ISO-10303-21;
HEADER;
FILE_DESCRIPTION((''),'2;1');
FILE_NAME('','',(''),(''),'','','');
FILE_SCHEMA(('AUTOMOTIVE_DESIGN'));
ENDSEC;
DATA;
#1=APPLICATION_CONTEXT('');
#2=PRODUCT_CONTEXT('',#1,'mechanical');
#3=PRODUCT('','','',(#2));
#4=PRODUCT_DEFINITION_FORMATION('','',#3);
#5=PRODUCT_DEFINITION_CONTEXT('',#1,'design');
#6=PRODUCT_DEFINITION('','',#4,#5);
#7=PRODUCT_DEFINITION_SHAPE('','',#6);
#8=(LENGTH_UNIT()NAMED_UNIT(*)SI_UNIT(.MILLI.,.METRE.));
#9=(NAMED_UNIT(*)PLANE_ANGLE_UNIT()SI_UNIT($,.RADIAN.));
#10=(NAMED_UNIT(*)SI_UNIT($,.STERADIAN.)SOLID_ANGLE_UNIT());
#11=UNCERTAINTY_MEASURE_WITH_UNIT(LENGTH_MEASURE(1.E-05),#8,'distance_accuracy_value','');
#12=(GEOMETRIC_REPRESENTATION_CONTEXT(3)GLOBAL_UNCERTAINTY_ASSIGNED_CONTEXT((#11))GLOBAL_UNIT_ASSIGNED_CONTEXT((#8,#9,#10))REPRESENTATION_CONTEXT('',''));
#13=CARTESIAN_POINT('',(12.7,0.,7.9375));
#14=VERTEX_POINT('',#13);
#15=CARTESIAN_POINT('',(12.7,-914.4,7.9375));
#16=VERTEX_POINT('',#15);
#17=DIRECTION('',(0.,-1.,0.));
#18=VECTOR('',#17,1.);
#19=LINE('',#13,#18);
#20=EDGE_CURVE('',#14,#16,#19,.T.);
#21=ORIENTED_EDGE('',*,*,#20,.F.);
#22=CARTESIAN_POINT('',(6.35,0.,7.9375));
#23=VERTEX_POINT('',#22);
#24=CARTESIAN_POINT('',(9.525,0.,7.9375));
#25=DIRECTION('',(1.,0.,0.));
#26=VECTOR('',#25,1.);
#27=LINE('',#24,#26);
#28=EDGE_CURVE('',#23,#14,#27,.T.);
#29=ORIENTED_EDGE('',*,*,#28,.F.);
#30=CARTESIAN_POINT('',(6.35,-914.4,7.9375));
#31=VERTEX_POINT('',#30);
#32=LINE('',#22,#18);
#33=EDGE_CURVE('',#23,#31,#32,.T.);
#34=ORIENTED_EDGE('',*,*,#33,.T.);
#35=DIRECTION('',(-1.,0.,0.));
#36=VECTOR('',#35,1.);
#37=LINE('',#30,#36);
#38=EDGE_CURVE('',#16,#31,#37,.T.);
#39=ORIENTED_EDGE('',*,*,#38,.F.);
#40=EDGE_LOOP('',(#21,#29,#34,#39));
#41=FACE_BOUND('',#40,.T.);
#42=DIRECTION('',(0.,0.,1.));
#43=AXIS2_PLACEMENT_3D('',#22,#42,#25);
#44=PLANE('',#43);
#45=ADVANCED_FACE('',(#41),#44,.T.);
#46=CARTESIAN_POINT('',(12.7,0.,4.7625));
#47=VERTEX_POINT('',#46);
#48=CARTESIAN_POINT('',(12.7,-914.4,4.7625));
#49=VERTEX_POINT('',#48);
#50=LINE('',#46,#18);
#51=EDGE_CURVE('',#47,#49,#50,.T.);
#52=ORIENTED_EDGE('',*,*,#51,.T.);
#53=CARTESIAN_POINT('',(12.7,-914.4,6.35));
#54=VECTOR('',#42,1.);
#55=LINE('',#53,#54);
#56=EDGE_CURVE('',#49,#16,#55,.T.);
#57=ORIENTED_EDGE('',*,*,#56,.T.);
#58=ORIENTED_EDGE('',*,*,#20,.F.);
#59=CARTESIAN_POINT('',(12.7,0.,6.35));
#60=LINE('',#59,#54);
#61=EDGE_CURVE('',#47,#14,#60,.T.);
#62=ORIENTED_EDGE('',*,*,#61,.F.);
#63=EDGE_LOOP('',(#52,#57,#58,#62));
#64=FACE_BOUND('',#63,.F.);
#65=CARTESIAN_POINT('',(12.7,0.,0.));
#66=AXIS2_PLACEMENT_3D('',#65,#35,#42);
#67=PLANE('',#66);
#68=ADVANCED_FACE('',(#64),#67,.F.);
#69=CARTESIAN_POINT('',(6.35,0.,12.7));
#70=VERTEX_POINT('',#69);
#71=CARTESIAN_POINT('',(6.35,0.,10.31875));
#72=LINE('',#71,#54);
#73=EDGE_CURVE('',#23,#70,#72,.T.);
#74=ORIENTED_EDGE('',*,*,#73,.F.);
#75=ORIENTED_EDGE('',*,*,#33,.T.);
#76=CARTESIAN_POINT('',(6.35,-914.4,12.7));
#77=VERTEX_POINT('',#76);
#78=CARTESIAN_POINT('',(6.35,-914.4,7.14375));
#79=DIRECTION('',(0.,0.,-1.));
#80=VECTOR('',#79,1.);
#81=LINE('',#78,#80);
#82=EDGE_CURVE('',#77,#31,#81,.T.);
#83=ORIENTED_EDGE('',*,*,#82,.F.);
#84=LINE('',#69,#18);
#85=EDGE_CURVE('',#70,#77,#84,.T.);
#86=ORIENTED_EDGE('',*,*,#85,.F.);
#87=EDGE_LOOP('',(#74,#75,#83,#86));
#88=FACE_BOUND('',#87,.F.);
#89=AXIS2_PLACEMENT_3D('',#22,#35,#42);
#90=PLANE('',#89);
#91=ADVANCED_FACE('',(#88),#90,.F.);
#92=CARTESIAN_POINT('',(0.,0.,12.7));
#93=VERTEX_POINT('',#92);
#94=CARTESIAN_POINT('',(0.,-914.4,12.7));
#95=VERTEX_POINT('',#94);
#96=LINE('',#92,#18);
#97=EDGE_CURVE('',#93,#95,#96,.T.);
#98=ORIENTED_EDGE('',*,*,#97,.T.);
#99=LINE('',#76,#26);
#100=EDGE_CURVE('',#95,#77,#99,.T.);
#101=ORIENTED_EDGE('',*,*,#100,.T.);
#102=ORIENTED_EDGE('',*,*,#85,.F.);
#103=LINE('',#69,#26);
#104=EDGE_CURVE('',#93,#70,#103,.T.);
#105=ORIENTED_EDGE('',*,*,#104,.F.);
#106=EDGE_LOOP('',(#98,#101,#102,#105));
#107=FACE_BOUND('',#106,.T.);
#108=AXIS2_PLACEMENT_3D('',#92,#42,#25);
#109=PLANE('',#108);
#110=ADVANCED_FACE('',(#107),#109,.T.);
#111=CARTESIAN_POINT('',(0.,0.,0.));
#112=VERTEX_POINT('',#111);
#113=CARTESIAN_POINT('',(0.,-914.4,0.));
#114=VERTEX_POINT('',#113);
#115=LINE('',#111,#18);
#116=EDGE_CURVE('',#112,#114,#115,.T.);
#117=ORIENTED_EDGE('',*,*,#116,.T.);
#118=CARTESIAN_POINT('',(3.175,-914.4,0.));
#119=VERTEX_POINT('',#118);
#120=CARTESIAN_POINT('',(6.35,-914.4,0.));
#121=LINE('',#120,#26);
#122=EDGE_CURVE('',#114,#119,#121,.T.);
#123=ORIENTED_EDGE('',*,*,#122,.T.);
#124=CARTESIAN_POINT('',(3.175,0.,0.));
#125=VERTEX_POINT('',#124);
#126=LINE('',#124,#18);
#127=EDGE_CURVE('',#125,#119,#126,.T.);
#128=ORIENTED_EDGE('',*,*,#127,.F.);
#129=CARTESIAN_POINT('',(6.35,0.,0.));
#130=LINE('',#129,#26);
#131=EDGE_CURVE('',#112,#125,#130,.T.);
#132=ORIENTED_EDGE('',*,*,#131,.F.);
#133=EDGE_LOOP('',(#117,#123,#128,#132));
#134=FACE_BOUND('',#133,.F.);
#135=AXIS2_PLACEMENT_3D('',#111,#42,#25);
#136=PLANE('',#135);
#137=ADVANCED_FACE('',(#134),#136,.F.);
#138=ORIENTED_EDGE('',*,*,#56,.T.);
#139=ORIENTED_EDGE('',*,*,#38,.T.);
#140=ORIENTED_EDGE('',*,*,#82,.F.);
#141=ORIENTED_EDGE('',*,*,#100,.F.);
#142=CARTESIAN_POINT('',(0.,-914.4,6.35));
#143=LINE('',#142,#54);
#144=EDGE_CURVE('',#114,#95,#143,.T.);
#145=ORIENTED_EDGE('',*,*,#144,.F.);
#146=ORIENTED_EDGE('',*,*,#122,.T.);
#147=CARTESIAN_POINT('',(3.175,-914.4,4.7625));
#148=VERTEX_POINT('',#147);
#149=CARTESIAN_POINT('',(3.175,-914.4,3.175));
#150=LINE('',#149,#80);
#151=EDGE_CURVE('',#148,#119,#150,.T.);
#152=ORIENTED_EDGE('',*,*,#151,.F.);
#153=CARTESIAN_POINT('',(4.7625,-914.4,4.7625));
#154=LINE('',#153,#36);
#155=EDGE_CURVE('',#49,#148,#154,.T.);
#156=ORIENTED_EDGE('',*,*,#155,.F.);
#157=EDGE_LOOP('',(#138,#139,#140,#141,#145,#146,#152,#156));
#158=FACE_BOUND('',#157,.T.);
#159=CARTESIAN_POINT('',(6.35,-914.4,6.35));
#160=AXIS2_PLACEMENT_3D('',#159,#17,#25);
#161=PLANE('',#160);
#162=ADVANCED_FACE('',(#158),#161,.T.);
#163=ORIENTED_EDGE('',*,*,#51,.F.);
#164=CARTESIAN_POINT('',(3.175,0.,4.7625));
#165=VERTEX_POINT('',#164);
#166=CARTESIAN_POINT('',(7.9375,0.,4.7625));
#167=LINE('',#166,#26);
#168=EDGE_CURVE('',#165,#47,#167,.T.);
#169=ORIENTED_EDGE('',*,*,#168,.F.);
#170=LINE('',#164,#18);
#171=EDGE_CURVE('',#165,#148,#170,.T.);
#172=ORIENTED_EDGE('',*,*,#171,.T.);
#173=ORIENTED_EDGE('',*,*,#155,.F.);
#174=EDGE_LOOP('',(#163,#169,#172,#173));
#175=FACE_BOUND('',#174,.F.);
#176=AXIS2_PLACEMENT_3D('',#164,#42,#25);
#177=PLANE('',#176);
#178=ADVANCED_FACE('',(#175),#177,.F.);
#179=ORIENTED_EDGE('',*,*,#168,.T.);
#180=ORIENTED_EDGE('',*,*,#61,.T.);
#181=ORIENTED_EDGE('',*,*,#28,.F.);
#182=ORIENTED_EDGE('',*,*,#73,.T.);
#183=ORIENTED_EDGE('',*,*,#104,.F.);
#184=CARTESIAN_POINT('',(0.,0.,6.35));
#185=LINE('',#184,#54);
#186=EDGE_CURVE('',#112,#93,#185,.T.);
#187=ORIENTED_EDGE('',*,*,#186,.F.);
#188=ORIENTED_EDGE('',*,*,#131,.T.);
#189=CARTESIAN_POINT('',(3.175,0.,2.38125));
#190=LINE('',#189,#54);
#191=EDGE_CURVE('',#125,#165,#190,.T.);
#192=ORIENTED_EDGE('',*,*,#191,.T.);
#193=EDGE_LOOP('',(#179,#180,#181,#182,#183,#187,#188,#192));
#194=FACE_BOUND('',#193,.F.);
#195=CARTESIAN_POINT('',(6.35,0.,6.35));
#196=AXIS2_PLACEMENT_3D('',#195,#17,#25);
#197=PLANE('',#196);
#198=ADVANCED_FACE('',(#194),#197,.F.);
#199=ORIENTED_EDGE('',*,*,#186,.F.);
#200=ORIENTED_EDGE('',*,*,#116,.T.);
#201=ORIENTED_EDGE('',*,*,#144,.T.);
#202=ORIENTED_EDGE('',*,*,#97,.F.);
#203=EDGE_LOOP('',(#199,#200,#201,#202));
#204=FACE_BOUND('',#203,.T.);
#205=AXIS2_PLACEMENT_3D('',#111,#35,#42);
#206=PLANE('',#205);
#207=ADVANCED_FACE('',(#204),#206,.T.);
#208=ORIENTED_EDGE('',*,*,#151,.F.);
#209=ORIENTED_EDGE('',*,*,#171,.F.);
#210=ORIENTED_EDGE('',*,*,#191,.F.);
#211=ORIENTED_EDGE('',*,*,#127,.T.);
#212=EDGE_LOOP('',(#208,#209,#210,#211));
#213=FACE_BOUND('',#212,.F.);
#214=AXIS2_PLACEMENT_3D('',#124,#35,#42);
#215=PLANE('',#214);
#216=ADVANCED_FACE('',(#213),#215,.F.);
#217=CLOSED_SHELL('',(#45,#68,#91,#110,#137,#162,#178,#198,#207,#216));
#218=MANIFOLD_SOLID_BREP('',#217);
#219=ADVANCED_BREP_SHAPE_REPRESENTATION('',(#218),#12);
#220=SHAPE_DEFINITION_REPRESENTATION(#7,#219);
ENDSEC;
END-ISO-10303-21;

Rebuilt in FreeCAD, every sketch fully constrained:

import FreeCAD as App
import Part
import Sketcher

V = App.Vector
Q = App.Units.Quantity

doc = App.newDocument("Part")
body = doc.addObject("PartDesign::Body", "Body")

# Sketch on XZ plane
sketch1 = body.newObject("Sketcher::SketchObject", "Sketch")
sketch1.AttachmentSupport = (doc.getObject("XZ_Plane"), [""])
sketch1.MapMode = "FlatFace"
sketch1.addGeometry(Part.LineSegment(V(0, 13, 0), V(0, 0, 0)), False)
sketch1.addGeometry(Part.LineSegment(V(0, 0, 0), V(13, 0, 0)), False)
sketch1.addGeometry(Part.LineSegment(V(13, 0, 0), V(13, 13, 0)), False)
sketch1.addGeometry(Part.LineSegment(V(13, 13, 0), V(0, 13, 0)), False)
sketch1.addConstraint(Sketcher.Constraint("Coincident", 0, 2, 1, 1))
sketch1.addConstraint(Sketcher.Constraint("Coincident", 1, 2, 2, 1))
sketch1.addConstraint(Sketcher.Constraint("Coincident", 2, 2, 3, 1))
sketch1.addConstraint(Sketcher.Constraint("Coincident", 3, 2, 0, 1))
sketch1.addConstraint(Sketcher.Constraint("Vertical", 0))
sketch1.addConstraint(Sketcher.Constraint("Horizontal", 1))
sketch1.addConstraint(Sketcher.Constraint("Vertical", 2))
sketch1.addConstraint(Sketcher.Constraint("Horizontal", 3))
sketch1.addConstraint(Sketcher.Constraint("Coincident", 0, 2, -1, 1))
sketch1.addConstraint(Sketcher.Constraint("Equal", 3, 0))
sketch1.addConstraint(Sketcher.Constraint("DistanceX", 1, 1, 1, 2, Q("0.5 in")))
pad1 = body.newObject("PartDesign::Pad", "Pad")
pad1.Profile = sketch1
pad1.Length = Q("36 in")

# Sketch on XZ plane
sketch2 = body.newObject("Sketcher::SketchObject", "Sketch001")
sketch2.AttachmentSupport = (doc.getObject("XZ_Plane"), [""])
sketch2.MapMode = "FlatFace"
sketch2.addGeometry(Part.LineSegment(V(3.2, 4.8, 0), V(3.2, 0, 0)), False)
sketch2.addGeometry(Part.LineSegment(V(3.2, 0, 0), V(12.7, 0, 0)), False)
sketch2.addGeometry(Part.LineSegment(V(12.7, 0, 0), V(12.7, 4.8, 0)), False)
sketch2.addGeometry(Part.LineSegment(V(12.7, 4.8, 0), V(3.2, 4.8, 0)), False)
sketch2.addConstraint(Sketcher.Constraint("Coincident", 0, 2, 1, 1))
sketch2.addConstraint(Sketcher.Constraint("Coincident", 1, 2, 2, 1))
sketch2.addConstraint(Sketcher.Constraint("Coincident", 2, 2, 3, 1))
sketch2.addConstraint(Sketcher.Constraint("Coincident", 3, 2, 0, 1))
sketch2.addConstraint(Sketcher.Constraint("Vertical", 0))
sketch2.addConstraint(Sketcher.Constraint("Horizontal", 1))
sketch2.addConstraint(Sketcher.Constraint("Vertical", 2))
sketch2.addConstraint(Sketcher.Constraint("Horizontal", 3))
sketch2.addConstraint(Sketcher.Constraint("PointOnObject", 0, 2, -1))
sketch2.addConstraint(Sketcher.Constraint("DistanceX", -1, 1, 1, 2, Q("0.5 in")))
sketch2.addConstraint(Sketcher.Constraint("DistanceX", 1, 1, 1, 2, Q("0.375 in")))
sketch2.addConstraint(Sketcher.Constraint("DistanceY", 0, 2, 0, 1, Q("0.1875 in")))
pocket1 = body.newObject("PartDesign::Pocket", "Pocket")
pocket1.Profile = sketch2
pocket1.Type = "ThroughAll"
pocket1.Reversed = True

# Sketch on XZ plane
sketch3 = body.newObject("Sketcher::SketchObject", "Sketch002")
sketch3.AttachmentSupport = (doc.getObject("XZ_Plane"), [""])
sketch3.MapMode = "FlatFace"
sketch3.addGeometry(Part.LineSegment(V(6.3, 12.7, 0), V(6.3, 7.9, 0)), False)
sketch3.addGeometry(Part.LineSegment(V(6.3, 7.9, 0), V(12.7, 7.9, 0)), False)
sketch3.addGeometry(Part.LineSegment(V(12.7, 7.9, 0), V(12.7, 12.7, 0)), False)
sketch3.addGeometry(Part.LineSegment(V(12.7, 12.7, 0), V(6.3, 12.7, 0)), False)
sketch3.addConstraint(Sketcher.Constraint("Coincident", 0, 2, 1, 1))
sketch3.addConstraint(Sketcher.Constraint("Coincident", 1, 2, 2, 1))
sketch3.addConstraint(Sketcher.Constraint("Coincident", 2, 2, 3, 1))
sketch3.addConstraint(Sketcher.Constraint("Coincident", 3, 2, 0, 1))
sketch3.addConstraint(Sketcher.Constraint("Vertical", 0))
sketch3.addConstraint(Sketcher.Constraint("Horizontal", 1))
sketch3.addConstraint(Sketcher.Constraint("Vertical", 2))
sketch3.addConstraint(Sketcher.Constraint("Horizontal", 3))
sketch3.addConstraint(Sketcher.Constraint("DistanceX", 1, 1, 1, 2, Q("0.25 in")))
sketch3.addConstraint(Sketcher.Constraint("DistanceX", -1, 1, 1, 2, Q("0.5 in")))
sketch3.addConstraint(Sketcher.Constraint("DistanceY", -1, 1, 2, 2, Q("0.5 in")))
sketch3.addConstraint(Sketcher.Constraint("DistanceY", 0, 2, 0, 1, Q("0.1875 in")))
pocket2 = body.newObject("PartDesign::Pocket", "Pocket001")
pocket2.Profile = sketch3
pocket2.Type = "ThroughAll"
pocket2.Reversed = True

doc.recompute()
